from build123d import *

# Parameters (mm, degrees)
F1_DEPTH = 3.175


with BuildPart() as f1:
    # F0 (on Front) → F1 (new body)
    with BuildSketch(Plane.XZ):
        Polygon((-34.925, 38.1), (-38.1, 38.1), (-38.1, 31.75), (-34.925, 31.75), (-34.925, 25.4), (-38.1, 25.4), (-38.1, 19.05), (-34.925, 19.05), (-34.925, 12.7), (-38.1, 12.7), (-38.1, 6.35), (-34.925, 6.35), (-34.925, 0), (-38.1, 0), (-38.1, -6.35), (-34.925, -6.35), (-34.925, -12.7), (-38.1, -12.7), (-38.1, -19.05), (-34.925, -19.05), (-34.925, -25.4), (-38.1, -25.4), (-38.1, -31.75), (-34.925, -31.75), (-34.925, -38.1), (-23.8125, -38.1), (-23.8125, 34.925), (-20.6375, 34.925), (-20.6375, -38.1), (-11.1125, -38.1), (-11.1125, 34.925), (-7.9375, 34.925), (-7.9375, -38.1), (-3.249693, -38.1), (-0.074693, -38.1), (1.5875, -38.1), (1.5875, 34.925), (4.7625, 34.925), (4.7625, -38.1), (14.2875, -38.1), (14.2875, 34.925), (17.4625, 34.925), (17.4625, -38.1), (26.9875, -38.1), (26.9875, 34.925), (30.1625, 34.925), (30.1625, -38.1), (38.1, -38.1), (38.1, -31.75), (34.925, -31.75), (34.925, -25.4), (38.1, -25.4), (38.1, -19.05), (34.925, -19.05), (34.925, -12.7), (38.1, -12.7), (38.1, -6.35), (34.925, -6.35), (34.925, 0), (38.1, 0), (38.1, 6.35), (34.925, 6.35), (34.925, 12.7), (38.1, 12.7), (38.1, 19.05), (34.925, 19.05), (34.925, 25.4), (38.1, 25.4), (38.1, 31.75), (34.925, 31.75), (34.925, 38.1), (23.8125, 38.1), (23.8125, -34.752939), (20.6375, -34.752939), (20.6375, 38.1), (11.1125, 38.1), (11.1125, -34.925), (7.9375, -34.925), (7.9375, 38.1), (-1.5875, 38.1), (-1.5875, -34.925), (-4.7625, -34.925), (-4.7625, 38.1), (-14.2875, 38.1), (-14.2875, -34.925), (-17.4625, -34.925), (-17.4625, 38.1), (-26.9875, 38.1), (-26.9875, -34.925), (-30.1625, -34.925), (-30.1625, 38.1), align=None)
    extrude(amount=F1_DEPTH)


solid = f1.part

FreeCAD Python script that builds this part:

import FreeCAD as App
import Part
import Sketcher

V = App.Vector
Q = App.Units.Quantity


def add_polygon(sketch, points):
    """Adds a closed chain of lines whose ends are joined by coincident constraints."""
    first, n = sketch.GeometryCount, len(points)
    for a, b in zip(points, points[1:] + points[:1]):
        sketch.addGeometry(Part.LineSegment(App.Vector(*a, 0), App.Vector(*b, 0)), False)
    for i in range(n):
        sketch.addConstraint(Sketcher.Constraint("Coincident", first + i, 2, first + (i + 1) % n, 1))

doc = App.newDocument("Part")
params = doc.addObject("Spreadsheet::Sheet", "Params")
for row, (alias, value) in enumerate([
    ("sketch1_width", "0.125 in"),
    ("sketch1_width2", "0.4375 in"),
    ("sketch1_width3", "0.375 in"),
    ("sketch1_height", "2.875 in"),
    ("pad1_length", "0.125 in"),
], start=1):
    params.set(f"A{row}", alias)
    params.set(f"B{row}", "=" + value)
    params.setAlias(f"B{row}", alias)

body = doc.addObject("PartDesign::Body", "Body")

# Sketch on XZ plane
sketch1 = body.newObject("Sketcher::SketchObject", "Sketch")
sketch1.AttachmentSupport = (doc.getObject("XZ_Plane"), [""])
sketch1.MapMode = "FlatFace"
add_polygon(sketch1, [(-38.1, 38.1), (-38.1, 31.75), (-34.925, 31.75), (-34.925, 25.4), (-38.1, 25.4), (-38.1, 19.05), (-34.925, 19.05), (-34.925, 12.7), (-38.1, 12.7), (-38.1, 6.35), (-34.925, 6.35), (-34.925, 0), (-38.1, 0), (-38.1, -6.35), (-34.925, -6.35), (-34.925, -12.7), (-38.1, -12.7), (-38.1, -19.05), (-34.925, -19.05), (-34.925, -25.4), (-38.1, -25.4), (-38.1, -31.75), (-34.925, -31.75), (-34.925, -38.1), (-23.8125, -38.1), (-23.8125, 34.925), (-20.6375, 34.925), (-20.6375, -38.1), (-11.1125, -38.1), (-11.1125, 34.925), (-7.9375, 34.925), (-7.9375, -38.1), (1.5875, -38.1), (1.5875, 34.925), (4.7625, 34.925), (4.7625, -38.1), (14.2875, -38.1), (14.2875, 34.925), (17.4625, 34.925), (17.4625, -38.1), (26.9875, -38.1), (26.9875, 34.925), (30.1625, 34.925), (30.1625, -38.1), (38.1, -38.1), (38.1, -31.75), (34.925, -31.75), (34.925, -25.4), (38.1, -25.4), (38.1, -19.05), (34.925, -19.05), (34.925, -12.7), (38.1, -12.7), (38.1, -6.35), (34.925, -6.35), (34.925, 0), (38.1, 0), (38.1, 6.35), (34.925, 6.35), (34.925, 12.7), (38.1, 12.7), (38.1, 19.05), (34.925, 19.05), (34.925, 25.4), (38.1, 25.4), (38.1, 31.75), (34.925, 31.75), (34.925, 38.1), (23.8125, 38.1), (23.8125, -34.752939), (20.6375, -34.752939), (20.6375, 38.1), (11.1125, 38.1), (11.1125, -34.925), (7.9375, -34.925), (7.9375, 38.1), (-1.5875, 38.1), (-1.5875, -34.925), (-4.7625, -34.925), (-4.7625, 38.1), (-14.2875, 38.1), (-14.2875, -34.925), (-17.4625, -34.925), (-17.4625, 38.1), (-26.9875, 38.1), (-26.9875, -34.925), (-30.1625, -34.925), (-30.1625, 38.1)])  # lines 0-87
sketch1.addConstraint([
    Sketcher.Constraint("Vertical", 0),
    Sketcher.Constraint("Horizontal", 1),
    Sketcher.Constraint("Vertical", 2),
    Sketcher.Constraint("Horizontal", 3),
    Sketcher.Constraint("Vertical", 4),
    Sketcher.Constraint("Horizontal", 5),
    Sketcher.Constraint("Vertical", 6),
    Sketcher.Constraint("Horizontal", 7),
    Sketcher.Constraint("Vertical", 8),
    Sketcher.Constraint("Horizontal", 9),
    Sketcher.Constraint("Vertical", 10),
    Sketcher.Constraint("Horizontal", 11),
    Sketcher.Constraint("Vertical", 12),
    Sketcher.Constraint("Horizontal", 13),
    Sketcher.Constraint("Vertical", 14),
    Sketcher.Constraint("Horizontal", 15),
    Sketcher.Constraint("Vertical", 16),
    Sketcher.Constraint("Horizontal", 17),
    Sketcher.Constraint("Vertical", 18),
    Sketcher.Constraint("Horizontal", 19),
    Sketcher.Constraint("Vertical", 20),
    Sketcher.Constraint("Horizontal", 21),
    Sketcher.Constraint("Vertical", 22),
    Sketcher.Constraint("Horizontal", 23),
    Sketcher.Constraint("Vertical", 24),
    Sketcher.Constraint("Horizontal", 25),
    Sketcher.Constraint("Vertical", 26),
    Sketcher.Constraint("Horizontal", 27),
    Sketcher.Constraint("Vertical", 28),
    Sketcher.Constraint("Horizontal", 29),
    Sketcher.Constraint("Vertical", 30),
    Sketcher.Constraint("Horizontal", 31),
    Sketcher.Constraint("Vertical", 32),
    Sketcher.Constraint("Horizontal", 33),
    Sketcher.Constraint("Vertical", 34),
    Sketcher.Constraint("Horizontal", 35),
    Sketcher.Constraint("Vertical", 36),
    Sketcher.Constraint("Horizontal", 37),
    Sketcher.Constraint("Vertical", 38),
    Sketcher.Constraint("Horizontal", 39),
    Sketcher.Constraint("Vertical", 40),
    Sketcher.Constraint("Horizontal", 41),
    Sketcher.Constraint("Vertical", 42),
    Sketcher.Constraint("Horizontal", 43),
    Sketcher.Constraint("Vertical", 44),
    Sketcher.Constraint("Horizontal", 45),
    Sketcher.Constraint("Vertical", 46),
    Sketcher.Constraint("Horizontal", 47),
    Sketcher.Constraint("Vertical", 48),
    Sketcher.Constraint("Horizontal", 49),
    Sketcher.Constraint("Vertical", 50),
    Sketcher.Constraint("Horizontal", 51),
    Sketcher.Constraint("Vertical", 52),
    Sketcher.Constraint("Horizontal", 53),
    Sketcher.Constraint("Vertical", 54),
    Sketcher.Constraint("Horizontal", 55),
    Sketcher.Constraint("Vertical", 56),
    Sketcher.Constraint("Horizontal", 57),
    Sketcher.Constraint("Vertical", 58),
    Sketcher.Constraint("Horizontal", 59),
    Sketcher.Constraint("Vertical", 60),
    Sketcher.Constraint("Horizontal", 61),
    Sketcher.Constraint("Vertical", 62),
    Sketcher.Constraint("Horizontal", 63),
    Sketcher.Constraint("Vertical", 64),
    Sketcher.Constraint("Horizontal", 65),
    Sketcher.Constraint("Vertical", 66),
    Sketcher.Constraint("Horizontal", 67),
    Sketcher.Constraint("Vertical", 68),
    Sketcher.Constraint("Horizontal", 69),
    Sketcher.Constraint("Vertical", 70),
    Sketcher.Constraint("Horizontal", 71),
    Sketcher.Constraint("Vertical", 72),
    Sketcher.Constraint("Horizontal", 73),
    Sketcher.Constraint("Vertical", 74),
    Sketcher.Constraint("Horizontal", 75),
    Sketcher.Constraint("Vertical", 76),
    Sketcher.Constraint("Horizontal", 77),
    Sketcher.Constraint("Vertical", 78),
    Sketcher.Constraint("Horizontal", 79),
    Sketcher.Constraint("Vertical", 80),
    Sketcher.Constraint("Horizontal", 81),
    Sketcher.Constraint("Vertical", 82),
    Sketcher.Constraint("Horizontal", 83),
    Sketcher.Constraint("Vertical", 84),
    Sketcher.Constraint("Horizontal", 85),
    Sketcher.Constraint("Vertical", 86),
    Sketcher.Constraint("Horizontal", 87),
    Sketcher.Constraint("Symmetric", 0, 2, 44, 2, -1, 1),
    Sketcher.Constraint("Symmetric", 2, 2, 46, 2, -1, 1),
    Sketcher.Constraint("Symmetric", 4, 2, 48, 2, -1, 1),
    Sketcher.Constraint("Symmetric", 6, 2, 50, 2, -1, 1),
    Sketcher.Constraint("Symmetric", 8, 2, 52, 2, -1, 1),
    Sketcher.Constraint("Symmetric", 10, 2, 54, 2, -1, 1),
    Sketcher.Constraint("Symmetric", 12, 2, 56, 2, -1, 1),
    Sketcher.Constraint("Symmetric", 14, 2, 58, 2, -1, 1),
    Sketcher.Constraint("Symmetric", 16, 2, 60, 2, -1, 1),
    Sketcher.Constraint("Symmetric", 18, 2, 62, 2, -1, 1),
    Sketcher.Constraint("Symmetric", 20, 2, 64, 2, -1, 1),
    Sketcher.Constraint("Symmetric", 22, 2, 66, 2, -1, 1),
    Sketcher.Constraint("Symmetric", 26, 2, 70, 2, -1, 1),
    Sketcher.Constraint("Symmetric", 28, 2, 72, 2, -1, 1),
    Sketcher.Constraint("Symmetric", 30, 2, 74, 2, -1, 1),
    Sketcher.Constraint("Symmetric", 32, 2, 76, 2, -1, 1),
    Sketcher.Constraint("Symmetric", 34, 2, 78, 2, -1, 1),
    Sketcher.Constraint("Symmetric", 36, 2, 80, 2, -1, 1),
    Sketcher.Constraint("Symmetric", 38, 2, 82, 2, -1, 1),
    Sketcher.Constraint("Symmetric", 40, 2, 84, 2, -1, 1),
    Sketcher.Constraint("Symmetric", 42, 2, 86, 2, -1, 1),
    Sketcher.Constraint("Symmetric", 20, 2, 44, 2, -2),
    Sketcher.Constraint("Symmetric", 18, 2, 46, 2, -2),
    Sketcher.Constraint("Symmetric", 16, 2, 48, 2, -2),
    Sketcher.Constraint("Symmetric", 14, 2, 50, 2, -2),
    Sketcher.Constraint("Symmetric", 12, 2, 52, 2, -2),
    Sketcher.Constraint("PointOnObject", 10, 2, -1),
    Sketcher.Constraint("Horizontal", 23, 2, 26, 2),
    Sketcher.Constraint("Horizontal", 25, 2, 28, 2),
    Sketcher.Constraint("Horizontal", 27, 2, 30, 2),
    Sketcher.Constraint("Horizontal", 29, 2, 32, 2),
    Sketcher.Constraint("Horizontal", 31, 2, 34, 2),
    Sketcher.Constraint("Horizontal", 33, 2, 36, 2),
    Sketcher.Constraint("Horizontal", 35, 2, 38, 2),
    Sketcher.Constraint("Horizontal", 37, 2, 40, 2),
    Sketcher.Constraint("Horizontal", 39, 2, 42, 2),
    Sketcher.Constraint("Vertical", 0, 2, 3, 2),
    Sketcher.Constraint("Vertical", 2, 2, 5, 2),
    Sketcher.Constraint("Vertical", 4, 2, 7, 2),
    Sketcher.Constraint("Vertical", 6, 2, 9, 2),
    Sketcher.Constraint("Vertical", 18, 2, 21, 2),
    Sketcher.Constraint("Equal", 21, 25),
    Sketcher.Constraint("Equal", 25, 29),
    Sketcher.Constraint("Equal", 27, 31),
    Sketcher.Constraint("Equal", 29, 33),
    Sketcher.Constraint("Equal", 31, 35),
    Sketcher.Constraint("Equal", 33, 37),
    Sketcher.Constraint("Equal", 35, 39),
    Sketcher.Constraint("Equal", 37, 41),
    Sketcher.Constraint("Equal", 23, 67),
    Sketcher.Constraint("Equal", 0, 2),
    Sketcher.Constraint("Equal", 2, 4),
    Sketcher.Constraint("Equal", 4, 6),
    Sketcher.Constraint("Equal", 6, 8),
    Sketcher.Constraint("Equal", 8, 10),
    Sketcher.Constraint("DistanceY", -1, 1, 2, 2, Q("1 in")),
    Sketcher.Constraint("DistanceX", 0, 2, -1, 1, Q("1.5 in")),
    Sketcher.Constraint("DistanceX", 1, 1, 1, 2, Q("0.125 in")),
    Sketcher.Constraint("DistanceX", 23, 1, 23, 2, Q("0.4375 in")),
    Sketcher.Constraint("DistanceX", 27, 1, 27, 2, Q("0.375 in")),
    Sketcher.Constraint("DistanceY", 24, 1, 24, 2, Q("2.875 in")),
    Sketcher.Constraint("DistanceY", 68, 2, 68, 1, Q("72.852939 mm")),
])
sketch1.setExpression("Constraints[233]", "Params.sketch1_width")
sketch1.setExpression("Constraints[234]", "Params.sketch1_width2")
sketch1.setExpression("Constraints[235]", "Params.sketch1_width3")
sketch1.setExpression("Constraints[236]", "Params.sketch1_height")
pad1 = body.newObject("PartDesign::Pad", "Pad")
pad1.Profile = sketch1
pad1.setExpression("Length", "Params.pad1_length")

doc.recompute()
